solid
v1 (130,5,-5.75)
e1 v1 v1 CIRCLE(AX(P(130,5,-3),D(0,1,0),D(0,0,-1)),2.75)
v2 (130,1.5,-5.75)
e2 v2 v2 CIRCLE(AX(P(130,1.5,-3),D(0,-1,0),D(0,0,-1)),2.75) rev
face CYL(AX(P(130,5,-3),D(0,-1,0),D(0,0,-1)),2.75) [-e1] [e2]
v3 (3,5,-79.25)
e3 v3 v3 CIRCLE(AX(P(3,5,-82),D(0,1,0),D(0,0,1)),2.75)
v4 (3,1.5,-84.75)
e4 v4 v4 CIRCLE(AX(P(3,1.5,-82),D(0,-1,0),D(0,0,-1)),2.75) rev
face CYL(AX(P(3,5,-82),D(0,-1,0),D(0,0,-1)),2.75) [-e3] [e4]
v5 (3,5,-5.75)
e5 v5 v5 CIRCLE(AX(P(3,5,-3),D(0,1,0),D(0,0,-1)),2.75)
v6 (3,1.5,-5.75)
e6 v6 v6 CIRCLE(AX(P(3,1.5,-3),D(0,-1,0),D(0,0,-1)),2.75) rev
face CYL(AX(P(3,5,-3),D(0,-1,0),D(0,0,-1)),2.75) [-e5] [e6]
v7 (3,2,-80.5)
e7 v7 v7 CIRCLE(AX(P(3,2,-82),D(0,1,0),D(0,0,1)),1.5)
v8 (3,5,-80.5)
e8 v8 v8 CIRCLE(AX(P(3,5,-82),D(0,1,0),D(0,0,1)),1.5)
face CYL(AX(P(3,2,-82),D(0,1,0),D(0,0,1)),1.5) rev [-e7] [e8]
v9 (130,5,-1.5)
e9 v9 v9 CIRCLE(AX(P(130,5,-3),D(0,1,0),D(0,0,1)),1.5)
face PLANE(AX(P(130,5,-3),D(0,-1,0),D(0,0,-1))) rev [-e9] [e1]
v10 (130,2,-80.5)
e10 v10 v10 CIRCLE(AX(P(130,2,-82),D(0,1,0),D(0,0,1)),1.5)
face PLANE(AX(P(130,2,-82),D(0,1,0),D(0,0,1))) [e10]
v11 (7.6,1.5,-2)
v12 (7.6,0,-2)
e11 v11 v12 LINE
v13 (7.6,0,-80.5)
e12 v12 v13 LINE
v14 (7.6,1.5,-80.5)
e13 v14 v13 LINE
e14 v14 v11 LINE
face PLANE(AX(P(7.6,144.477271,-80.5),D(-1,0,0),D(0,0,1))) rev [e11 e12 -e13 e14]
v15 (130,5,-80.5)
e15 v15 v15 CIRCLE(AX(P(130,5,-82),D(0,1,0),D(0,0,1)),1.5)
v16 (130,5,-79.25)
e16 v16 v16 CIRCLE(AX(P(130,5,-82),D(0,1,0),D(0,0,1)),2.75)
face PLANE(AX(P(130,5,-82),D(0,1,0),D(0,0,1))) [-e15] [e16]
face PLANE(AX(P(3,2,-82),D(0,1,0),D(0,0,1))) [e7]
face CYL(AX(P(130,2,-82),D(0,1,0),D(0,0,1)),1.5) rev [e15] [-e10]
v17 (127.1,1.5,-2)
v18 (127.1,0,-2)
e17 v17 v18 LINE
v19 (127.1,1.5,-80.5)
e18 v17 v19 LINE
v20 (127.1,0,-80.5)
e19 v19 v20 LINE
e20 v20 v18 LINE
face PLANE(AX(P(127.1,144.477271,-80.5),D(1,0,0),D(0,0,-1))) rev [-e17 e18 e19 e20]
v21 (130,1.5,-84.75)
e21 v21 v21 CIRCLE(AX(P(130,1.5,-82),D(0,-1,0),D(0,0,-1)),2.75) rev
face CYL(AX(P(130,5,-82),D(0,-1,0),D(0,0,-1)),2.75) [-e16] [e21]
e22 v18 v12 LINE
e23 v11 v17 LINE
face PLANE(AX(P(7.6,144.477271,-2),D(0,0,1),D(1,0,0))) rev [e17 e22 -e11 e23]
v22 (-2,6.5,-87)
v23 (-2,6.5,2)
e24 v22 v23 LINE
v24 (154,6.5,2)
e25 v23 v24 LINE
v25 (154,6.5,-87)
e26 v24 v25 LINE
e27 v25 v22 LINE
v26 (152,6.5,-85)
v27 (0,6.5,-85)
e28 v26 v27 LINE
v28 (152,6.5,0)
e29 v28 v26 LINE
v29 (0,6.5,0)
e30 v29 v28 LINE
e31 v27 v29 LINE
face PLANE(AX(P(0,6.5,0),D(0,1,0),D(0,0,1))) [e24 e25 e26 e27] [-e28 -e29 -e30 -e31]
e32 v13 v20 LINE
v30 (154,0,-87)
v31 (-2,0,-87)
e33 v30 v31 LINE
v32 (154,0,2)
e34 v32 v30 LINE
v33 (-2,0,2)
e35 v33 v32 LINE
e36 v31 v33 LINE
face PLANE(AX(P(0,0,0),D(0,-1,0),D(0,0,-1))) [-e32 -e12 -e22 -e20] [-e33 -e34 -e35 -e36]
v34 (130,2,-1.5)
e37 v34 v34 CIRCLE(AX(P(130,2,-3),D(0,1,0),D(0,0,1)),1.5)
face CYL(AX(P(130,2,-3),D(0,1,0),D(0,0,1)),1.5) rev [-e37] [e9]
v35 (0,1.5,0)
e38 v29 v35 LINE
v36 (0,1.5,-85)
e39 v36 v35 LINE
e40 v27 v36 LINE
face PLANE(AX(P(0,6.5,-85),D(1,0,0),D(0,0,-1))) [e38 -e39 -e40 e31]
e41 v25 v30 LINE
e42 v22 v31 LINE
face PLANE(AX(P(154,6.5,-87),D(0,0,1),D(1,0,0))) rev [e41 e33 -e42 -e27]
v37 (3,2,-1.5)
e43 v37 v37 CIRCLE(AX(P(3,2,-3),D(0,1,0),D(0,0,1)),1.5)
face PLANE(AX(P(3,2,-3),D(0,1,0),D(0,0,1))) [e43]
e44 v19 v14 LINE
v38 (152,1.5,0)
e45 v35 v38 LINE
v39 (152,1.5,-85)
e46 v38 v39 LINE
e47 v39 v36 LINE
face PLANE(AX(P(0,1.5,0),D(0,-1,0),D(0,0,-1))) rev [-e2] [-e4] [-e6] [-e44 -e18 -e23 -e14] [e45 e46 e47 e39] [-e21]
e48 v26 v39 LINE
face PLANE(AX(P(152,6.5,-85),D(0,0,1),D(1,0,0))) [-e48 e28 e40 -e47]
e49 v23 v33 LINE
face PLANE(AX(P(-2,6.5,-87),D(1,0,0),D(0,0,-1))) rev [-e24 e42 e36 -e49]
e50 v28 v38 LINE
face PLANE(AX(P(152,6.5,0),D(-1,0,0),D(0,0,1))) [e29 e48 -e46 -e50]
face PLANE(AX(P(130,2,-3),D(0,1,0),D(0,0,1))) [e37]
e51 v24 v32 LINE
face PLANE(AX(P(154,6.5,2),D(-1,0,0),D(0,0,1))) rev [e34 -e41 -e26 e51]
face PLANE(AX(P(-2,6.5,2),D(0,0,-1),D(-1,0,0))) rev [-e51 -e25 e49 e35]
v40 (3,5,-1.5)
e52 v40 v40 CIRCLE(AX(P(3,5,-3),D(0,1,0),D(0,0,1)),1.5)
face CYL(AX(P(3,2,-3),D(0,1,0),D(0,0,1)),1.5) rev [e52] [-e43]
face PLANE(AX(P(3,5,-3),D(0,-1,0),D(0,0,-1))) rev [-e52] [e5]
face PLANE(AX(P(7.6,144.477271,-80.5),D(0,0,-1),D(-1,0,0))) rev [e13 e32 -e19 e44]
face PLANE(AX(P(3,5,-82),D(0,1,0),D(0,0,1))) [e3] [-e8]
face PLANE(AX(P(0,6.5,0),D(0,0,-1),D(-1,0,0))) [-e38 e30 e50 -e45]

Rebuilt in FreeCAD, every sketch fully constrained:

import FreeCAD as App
import Part
import Sketcher
from FreeCAD import Vector
Q = App.Units.Quantity

doc = App.newDocument("Part")
body = doc.addObject("PartDesign::Body", "Body")

sketch1 = body.newObject("Sketcher::SketchObject", "Sketch")
sketch1.AttachmentSupport = (doc.getObject("XZ_Plane"), [""])
sketch1.MapMode = "FlatFace"
sketch1.addGeometry([
    Part.LineSegment(Vector(0, -85, 0), Vector(0, 0, 0)),
    Part.LineSegment(Vector(0, 0, 0), Vector(152, 0, 0)),
    Part.LineSegment(Vector(152, 0, 0), Vector(152, -85, 0)),
    Part.LineSegment(Vector(152, -85, 0), Vector(0, -85, 0)),
], False)
sketch1.addConstraint([
    Sketcher.Constraint("Coincident", 0, 2, 1, 1),
    Sketcher.Constraint("Coincident", 1, 2, 2, 1),
    Sketcher.Constraint("Coincident", 2, 2, 3, 1),
    Sketcher.Constraint("Coincident", 3, 2, 0, 1),
    Sketcher.Constraint("Vertical", 0),
    Sketcher.Constraint("Horizontal", 1),
    Sketcher.Constraint("Vertical", 2),
    Sketcher.Constraint("Horizontal", 3),
    Sketcher.Constraint("Coincident", 0, 2, -1, 1),
    Sketcher.Constraint("DistanceX", 1, 1, 1, 2, Q("152 mm")),
    Sketcher.Constraint("DistanceY", 0, 1, 0, 2, Q("85 mm")),
])
pad1 = body.newObject("PartDesign::Pad", "Pad")
pad1.Profile = sketch1
pad1.Length = 1.5
pad1.Reversed = True

sketch2 = body.newObject("Sketcher::SketchObject", "Sketch001")
sketch2.AttachmentSupport = (doc.getObject("XZ_Plane"), [""])
sketch2.MapMode = "FlatFace"
sketch2.AttachmentOffset = App.Placement(Vector(0, 0, -1.5), App.Rotation())
sketch2.addGeometry([
    Part.LineSegment(Vector(-2, -87, 0), Vector(-2, 2, 0)),
    Part.LineSegment(Vector(-2, 2, 0), Vector(154, 2, 0)),
    Part.LineSegment(Vector(154, 2, 0), Vector(154, -87, 0)),
    Part.LineSegment(Vector(154, -87, 0), Vector(-2, -87, 0)),
    Part.LineSegment(Vector(152, 0, 0), Vector(0, 0, 0)),
    Part.LineSegment(Vector(0, 0, 0), Vector(0, -85, 0)),
    Part.LineSegment(Vector(0, -85, 0), Vector(152, -85, 0)),
    Part.LineSegment(Vector(152, -85, 0), Vector(152, 0, 0)),
], False)
sketch2.addConstraint([
    Sketcher.Constraint("Coincident", 0, 2, 1, 1),
    Sketcher.Constraint("Coincident", 1, 2, 2, 1),
    Sketcher.Constraint("Coincident", 2, 2, 3, 1),
    Sketcher.Constraint("Coincident", 3, 2, 0, 1),
    Sketcher.Constraint("Coincident", 4, 2, 5, 1),
    Sketcher.Constraint("Coincident", 5, 2, 6, 1),
    Sketcher.Constraint("Coincident", 6, 2, 7, 1),
    Sketcher.Constraint("Coincident", 7, 2, 4, 1),
    Sketcher.Constraint("Vertical", 0),
    Sketcher.Constraint("Horizontal", 1),
    Sketcher.Constraint("Vertical", 2),
    Sketcher.Constraint("Horizontal", 3),
    Sketcher.Constraint("Horizontal", 4),
    Sketcher.Constraint("Vertical", 5),
    Sketcher.Constraint("Horizontal", 6),
    Sketcher.Constraint("Vertical", 7),
    Sketcher.Constraint("Coincident", 4, 2, -1, 1),
    Sketcher.Constraint("DistanceX", 1, 1, 1, 2, Q("156 mm")),
    Sketcher.Constraint("DistanceX", 4, 2, 4, 1, Q("152 mm")),
    Sketcher.Constraint("DistanceY", 0, 1, 0, 2, Q("89 mm")),
    Sketcher.Constraint("DistanceY", 5, 2, 5, 1, Q("85 mm")),
    Sketcher.Constraint("DistanceX", 0, 2, -1, 1, Q("2 mm")),
    Sketcher.Constraint("DistanceY", -1, 1, 0, 2, Q("2 mm")),
])
pad2 = body.newObject("PartDesign::Pad", "Pad001")
pad2.Profile = sketch2
pad2.Type = "TwoLengths"
pad2.Length = 5
pad2.Length2 = 1.5
pad2.Reversed = True

sketch3 = body.newObject("Sketcher::SketchObject", "Sketch002")
sketch3.AttachmentSupport = (doc.getObject("XZ_Plane"), [""])
sketch3.MapMode = "FlatFace"
sketch3.AttachmentOffset = App.Placement(Vector(0, 0, -1.5), App.Rotation())
sketch3.addGeometry([
    Part.Circle(Vector(3, -82, 0), Vector(0, 0, 1), 2.8),
    Part.Circle(Vector(3, -3, 0), Vector(0, 0, 1), 2.8),
    Part.Circle(Vector(130, -82, 0), Vector(0, 0, 1), 2.8),
    Part.Circle(Vector(130, -3, 0), Vector(0, 0, 1), 2.8),
], False)
sketch3.addConstraint([
    Sketcher.Constraint("Equal", 0, 1),
    Sketcher.Constraint("Equal", 1, 2),
    Sketcher.Constraint("Equal", 2, 3),
    Sketcher.Constraint("Horizontal", 0, 3, 2, 3),
    Sketcher.Constraint("Horizontal", 1, 3, 3, 3),
    Sketcher.Constraint("Vertical", 0, 3, 1, 3),
    Sketcher.Constraint("Vertical", 2, 3, 3, 3),
    Sketcher.Constraint("Diameter", 0, Q("5.5 mm")),
    Sketcher.Constraint("DistanceX", -1, 1, 0, 3, Q("3 mm")),
    Sketcher.Constraint("DistanceY", 0, 3, -1, 1, Q("82 mm")),
    Sketcher.Constraint("DistanceY", 1, 3, -1, 1, Q("3 mm")),
    Sketcher.Constraint("DistanceX", -1, 1, 2, 3, Q("130 mm")),
])
pad3 = body.newObject("PartDesign::Pad", "Pad002")
pad3.Profile = sketch3
pad3.Length = 3.5
pad3.Reversed = True

sketch4 = body.newObject("Sketcher::SketchObject", "Sketch003")
sketch4.AttachmentSupport = (doc.getObject("XZ_Plane"), [""])
sketch4.MapMode = "FlatFace"
sketch4.addGeometry([
    Part.LineSegment(Vector(8, -2, 0), Vector(8, -80, 0)),
    Part.LineSegment(Vector(8, -80, 0), Vector(127, -80, 0)),
    Part.LineSegment(Vector(127, -80, 0), Vector(127, -2, 0)),
    Part.LineSegment(Vector(127, -2, 0), Vector(8, -2, 0)),
], False)
sketch4.addConstraint([
    Sketcher.Constraint("Coincident", 0, 2, 1, 1),
    Sketcher.Constraint("Coincident", 1, 2, 2, 1),
    Sketcher.Constraint("Coincident", 2, 2, 3, 1),
    Sketcher.Constraint("Coincident", 3, 2, 0, 1),
    Sketcher.Constraint("Vertical", 0),
    Sketcher.Constraint("Horizontal", 1),
    Sketcher.Constraint("Vertical", 2),
    Sketcher.Constraint("Horizontal", 3),
    Sketcher.Constraint("DistanceX", 1, 1, 1, 2, Q("119.5 mm")),
    Sketcher.Constraint("DistanceY", 0, 2, 0, 1, Q("78.5 mm")),
    Sketcher.Constraint("DistanceY", 2, 2, -1, 1, Q("2 mm")),
    Sketcher.Constraint("DistanceX", -1, 1, 0, 2, Q("7.6 mm")),
])
pocket1 = body.newObject("PartDesign::Pocket", "Pocket")
pocket1.Profile = sketch4
pocket1.Length = 1.5

sketch5 = body.newObject("Sketcher::SketchObject", "Sketch004")
sketch5.AttachmentSupport = (doc.getObject("XZ_Plane"), [""])
sketch5.MapMode = "FlatFace"
sketch5.AttachmentOffset = App.Placement(Vector(0, 0, -5), App.Rotation())
sketch5.addGeometry([
    Part.Circle(Vector(130, -3, 0), Vector(0, 0, 1), 1.5),
    Part.Circle(Vector(3, -3, 0), Vector(0, 0, 1), 1.5),
    Part.Circle(Vector(3, -82, 0), Vector(0, 0, 1), 1.5),
    Part.Circle(Vector(130, -82, 0), Vector(0, 0, 1), 1.5),
], False)
sketch5.addConstraint([
    Sketcher.Constraint("Equal", 0, 1),
    Sketcher.Constraint("Equal", 1, 2),
    Sketcher.Constraint("Equal", 2, 3),
    Sketcher.Constraint("Horizontal", 0, 3, 1, 3),
    Sketcher.Constraint("Horizontal", 2, 3, 3, 3),
    Sketcher.Constraint("Vertical", 1, 3, 2, 3),
    Sketcher.Constraint("Vertical", 0, 3, 3, 3),
    Sketcher.Constraint("Diameter", 0, Q("3 mm")),
    Sketcher.Constraint("DistanceX", -1, 1, 0, 3, Q("130 mm")),
    Sketcher.Constraint("DistanceY", 0, 3, -1, 1, Q("3 mm")),
    Sketcher.Constraint("DistanceX", -1, 1, 1, 3, Q("3 mm")),
    Sketcher.Constraint("DistanceY", 2, 3, -1, 1, Q("82 mm")),
])
pocket2 = body.newObject("PartDesign::Pocket", "Pocket001")
pocket2.Profile = sketch5
pocket2.Length = 3
pocket2.Reversed = True

doc.recompute()
